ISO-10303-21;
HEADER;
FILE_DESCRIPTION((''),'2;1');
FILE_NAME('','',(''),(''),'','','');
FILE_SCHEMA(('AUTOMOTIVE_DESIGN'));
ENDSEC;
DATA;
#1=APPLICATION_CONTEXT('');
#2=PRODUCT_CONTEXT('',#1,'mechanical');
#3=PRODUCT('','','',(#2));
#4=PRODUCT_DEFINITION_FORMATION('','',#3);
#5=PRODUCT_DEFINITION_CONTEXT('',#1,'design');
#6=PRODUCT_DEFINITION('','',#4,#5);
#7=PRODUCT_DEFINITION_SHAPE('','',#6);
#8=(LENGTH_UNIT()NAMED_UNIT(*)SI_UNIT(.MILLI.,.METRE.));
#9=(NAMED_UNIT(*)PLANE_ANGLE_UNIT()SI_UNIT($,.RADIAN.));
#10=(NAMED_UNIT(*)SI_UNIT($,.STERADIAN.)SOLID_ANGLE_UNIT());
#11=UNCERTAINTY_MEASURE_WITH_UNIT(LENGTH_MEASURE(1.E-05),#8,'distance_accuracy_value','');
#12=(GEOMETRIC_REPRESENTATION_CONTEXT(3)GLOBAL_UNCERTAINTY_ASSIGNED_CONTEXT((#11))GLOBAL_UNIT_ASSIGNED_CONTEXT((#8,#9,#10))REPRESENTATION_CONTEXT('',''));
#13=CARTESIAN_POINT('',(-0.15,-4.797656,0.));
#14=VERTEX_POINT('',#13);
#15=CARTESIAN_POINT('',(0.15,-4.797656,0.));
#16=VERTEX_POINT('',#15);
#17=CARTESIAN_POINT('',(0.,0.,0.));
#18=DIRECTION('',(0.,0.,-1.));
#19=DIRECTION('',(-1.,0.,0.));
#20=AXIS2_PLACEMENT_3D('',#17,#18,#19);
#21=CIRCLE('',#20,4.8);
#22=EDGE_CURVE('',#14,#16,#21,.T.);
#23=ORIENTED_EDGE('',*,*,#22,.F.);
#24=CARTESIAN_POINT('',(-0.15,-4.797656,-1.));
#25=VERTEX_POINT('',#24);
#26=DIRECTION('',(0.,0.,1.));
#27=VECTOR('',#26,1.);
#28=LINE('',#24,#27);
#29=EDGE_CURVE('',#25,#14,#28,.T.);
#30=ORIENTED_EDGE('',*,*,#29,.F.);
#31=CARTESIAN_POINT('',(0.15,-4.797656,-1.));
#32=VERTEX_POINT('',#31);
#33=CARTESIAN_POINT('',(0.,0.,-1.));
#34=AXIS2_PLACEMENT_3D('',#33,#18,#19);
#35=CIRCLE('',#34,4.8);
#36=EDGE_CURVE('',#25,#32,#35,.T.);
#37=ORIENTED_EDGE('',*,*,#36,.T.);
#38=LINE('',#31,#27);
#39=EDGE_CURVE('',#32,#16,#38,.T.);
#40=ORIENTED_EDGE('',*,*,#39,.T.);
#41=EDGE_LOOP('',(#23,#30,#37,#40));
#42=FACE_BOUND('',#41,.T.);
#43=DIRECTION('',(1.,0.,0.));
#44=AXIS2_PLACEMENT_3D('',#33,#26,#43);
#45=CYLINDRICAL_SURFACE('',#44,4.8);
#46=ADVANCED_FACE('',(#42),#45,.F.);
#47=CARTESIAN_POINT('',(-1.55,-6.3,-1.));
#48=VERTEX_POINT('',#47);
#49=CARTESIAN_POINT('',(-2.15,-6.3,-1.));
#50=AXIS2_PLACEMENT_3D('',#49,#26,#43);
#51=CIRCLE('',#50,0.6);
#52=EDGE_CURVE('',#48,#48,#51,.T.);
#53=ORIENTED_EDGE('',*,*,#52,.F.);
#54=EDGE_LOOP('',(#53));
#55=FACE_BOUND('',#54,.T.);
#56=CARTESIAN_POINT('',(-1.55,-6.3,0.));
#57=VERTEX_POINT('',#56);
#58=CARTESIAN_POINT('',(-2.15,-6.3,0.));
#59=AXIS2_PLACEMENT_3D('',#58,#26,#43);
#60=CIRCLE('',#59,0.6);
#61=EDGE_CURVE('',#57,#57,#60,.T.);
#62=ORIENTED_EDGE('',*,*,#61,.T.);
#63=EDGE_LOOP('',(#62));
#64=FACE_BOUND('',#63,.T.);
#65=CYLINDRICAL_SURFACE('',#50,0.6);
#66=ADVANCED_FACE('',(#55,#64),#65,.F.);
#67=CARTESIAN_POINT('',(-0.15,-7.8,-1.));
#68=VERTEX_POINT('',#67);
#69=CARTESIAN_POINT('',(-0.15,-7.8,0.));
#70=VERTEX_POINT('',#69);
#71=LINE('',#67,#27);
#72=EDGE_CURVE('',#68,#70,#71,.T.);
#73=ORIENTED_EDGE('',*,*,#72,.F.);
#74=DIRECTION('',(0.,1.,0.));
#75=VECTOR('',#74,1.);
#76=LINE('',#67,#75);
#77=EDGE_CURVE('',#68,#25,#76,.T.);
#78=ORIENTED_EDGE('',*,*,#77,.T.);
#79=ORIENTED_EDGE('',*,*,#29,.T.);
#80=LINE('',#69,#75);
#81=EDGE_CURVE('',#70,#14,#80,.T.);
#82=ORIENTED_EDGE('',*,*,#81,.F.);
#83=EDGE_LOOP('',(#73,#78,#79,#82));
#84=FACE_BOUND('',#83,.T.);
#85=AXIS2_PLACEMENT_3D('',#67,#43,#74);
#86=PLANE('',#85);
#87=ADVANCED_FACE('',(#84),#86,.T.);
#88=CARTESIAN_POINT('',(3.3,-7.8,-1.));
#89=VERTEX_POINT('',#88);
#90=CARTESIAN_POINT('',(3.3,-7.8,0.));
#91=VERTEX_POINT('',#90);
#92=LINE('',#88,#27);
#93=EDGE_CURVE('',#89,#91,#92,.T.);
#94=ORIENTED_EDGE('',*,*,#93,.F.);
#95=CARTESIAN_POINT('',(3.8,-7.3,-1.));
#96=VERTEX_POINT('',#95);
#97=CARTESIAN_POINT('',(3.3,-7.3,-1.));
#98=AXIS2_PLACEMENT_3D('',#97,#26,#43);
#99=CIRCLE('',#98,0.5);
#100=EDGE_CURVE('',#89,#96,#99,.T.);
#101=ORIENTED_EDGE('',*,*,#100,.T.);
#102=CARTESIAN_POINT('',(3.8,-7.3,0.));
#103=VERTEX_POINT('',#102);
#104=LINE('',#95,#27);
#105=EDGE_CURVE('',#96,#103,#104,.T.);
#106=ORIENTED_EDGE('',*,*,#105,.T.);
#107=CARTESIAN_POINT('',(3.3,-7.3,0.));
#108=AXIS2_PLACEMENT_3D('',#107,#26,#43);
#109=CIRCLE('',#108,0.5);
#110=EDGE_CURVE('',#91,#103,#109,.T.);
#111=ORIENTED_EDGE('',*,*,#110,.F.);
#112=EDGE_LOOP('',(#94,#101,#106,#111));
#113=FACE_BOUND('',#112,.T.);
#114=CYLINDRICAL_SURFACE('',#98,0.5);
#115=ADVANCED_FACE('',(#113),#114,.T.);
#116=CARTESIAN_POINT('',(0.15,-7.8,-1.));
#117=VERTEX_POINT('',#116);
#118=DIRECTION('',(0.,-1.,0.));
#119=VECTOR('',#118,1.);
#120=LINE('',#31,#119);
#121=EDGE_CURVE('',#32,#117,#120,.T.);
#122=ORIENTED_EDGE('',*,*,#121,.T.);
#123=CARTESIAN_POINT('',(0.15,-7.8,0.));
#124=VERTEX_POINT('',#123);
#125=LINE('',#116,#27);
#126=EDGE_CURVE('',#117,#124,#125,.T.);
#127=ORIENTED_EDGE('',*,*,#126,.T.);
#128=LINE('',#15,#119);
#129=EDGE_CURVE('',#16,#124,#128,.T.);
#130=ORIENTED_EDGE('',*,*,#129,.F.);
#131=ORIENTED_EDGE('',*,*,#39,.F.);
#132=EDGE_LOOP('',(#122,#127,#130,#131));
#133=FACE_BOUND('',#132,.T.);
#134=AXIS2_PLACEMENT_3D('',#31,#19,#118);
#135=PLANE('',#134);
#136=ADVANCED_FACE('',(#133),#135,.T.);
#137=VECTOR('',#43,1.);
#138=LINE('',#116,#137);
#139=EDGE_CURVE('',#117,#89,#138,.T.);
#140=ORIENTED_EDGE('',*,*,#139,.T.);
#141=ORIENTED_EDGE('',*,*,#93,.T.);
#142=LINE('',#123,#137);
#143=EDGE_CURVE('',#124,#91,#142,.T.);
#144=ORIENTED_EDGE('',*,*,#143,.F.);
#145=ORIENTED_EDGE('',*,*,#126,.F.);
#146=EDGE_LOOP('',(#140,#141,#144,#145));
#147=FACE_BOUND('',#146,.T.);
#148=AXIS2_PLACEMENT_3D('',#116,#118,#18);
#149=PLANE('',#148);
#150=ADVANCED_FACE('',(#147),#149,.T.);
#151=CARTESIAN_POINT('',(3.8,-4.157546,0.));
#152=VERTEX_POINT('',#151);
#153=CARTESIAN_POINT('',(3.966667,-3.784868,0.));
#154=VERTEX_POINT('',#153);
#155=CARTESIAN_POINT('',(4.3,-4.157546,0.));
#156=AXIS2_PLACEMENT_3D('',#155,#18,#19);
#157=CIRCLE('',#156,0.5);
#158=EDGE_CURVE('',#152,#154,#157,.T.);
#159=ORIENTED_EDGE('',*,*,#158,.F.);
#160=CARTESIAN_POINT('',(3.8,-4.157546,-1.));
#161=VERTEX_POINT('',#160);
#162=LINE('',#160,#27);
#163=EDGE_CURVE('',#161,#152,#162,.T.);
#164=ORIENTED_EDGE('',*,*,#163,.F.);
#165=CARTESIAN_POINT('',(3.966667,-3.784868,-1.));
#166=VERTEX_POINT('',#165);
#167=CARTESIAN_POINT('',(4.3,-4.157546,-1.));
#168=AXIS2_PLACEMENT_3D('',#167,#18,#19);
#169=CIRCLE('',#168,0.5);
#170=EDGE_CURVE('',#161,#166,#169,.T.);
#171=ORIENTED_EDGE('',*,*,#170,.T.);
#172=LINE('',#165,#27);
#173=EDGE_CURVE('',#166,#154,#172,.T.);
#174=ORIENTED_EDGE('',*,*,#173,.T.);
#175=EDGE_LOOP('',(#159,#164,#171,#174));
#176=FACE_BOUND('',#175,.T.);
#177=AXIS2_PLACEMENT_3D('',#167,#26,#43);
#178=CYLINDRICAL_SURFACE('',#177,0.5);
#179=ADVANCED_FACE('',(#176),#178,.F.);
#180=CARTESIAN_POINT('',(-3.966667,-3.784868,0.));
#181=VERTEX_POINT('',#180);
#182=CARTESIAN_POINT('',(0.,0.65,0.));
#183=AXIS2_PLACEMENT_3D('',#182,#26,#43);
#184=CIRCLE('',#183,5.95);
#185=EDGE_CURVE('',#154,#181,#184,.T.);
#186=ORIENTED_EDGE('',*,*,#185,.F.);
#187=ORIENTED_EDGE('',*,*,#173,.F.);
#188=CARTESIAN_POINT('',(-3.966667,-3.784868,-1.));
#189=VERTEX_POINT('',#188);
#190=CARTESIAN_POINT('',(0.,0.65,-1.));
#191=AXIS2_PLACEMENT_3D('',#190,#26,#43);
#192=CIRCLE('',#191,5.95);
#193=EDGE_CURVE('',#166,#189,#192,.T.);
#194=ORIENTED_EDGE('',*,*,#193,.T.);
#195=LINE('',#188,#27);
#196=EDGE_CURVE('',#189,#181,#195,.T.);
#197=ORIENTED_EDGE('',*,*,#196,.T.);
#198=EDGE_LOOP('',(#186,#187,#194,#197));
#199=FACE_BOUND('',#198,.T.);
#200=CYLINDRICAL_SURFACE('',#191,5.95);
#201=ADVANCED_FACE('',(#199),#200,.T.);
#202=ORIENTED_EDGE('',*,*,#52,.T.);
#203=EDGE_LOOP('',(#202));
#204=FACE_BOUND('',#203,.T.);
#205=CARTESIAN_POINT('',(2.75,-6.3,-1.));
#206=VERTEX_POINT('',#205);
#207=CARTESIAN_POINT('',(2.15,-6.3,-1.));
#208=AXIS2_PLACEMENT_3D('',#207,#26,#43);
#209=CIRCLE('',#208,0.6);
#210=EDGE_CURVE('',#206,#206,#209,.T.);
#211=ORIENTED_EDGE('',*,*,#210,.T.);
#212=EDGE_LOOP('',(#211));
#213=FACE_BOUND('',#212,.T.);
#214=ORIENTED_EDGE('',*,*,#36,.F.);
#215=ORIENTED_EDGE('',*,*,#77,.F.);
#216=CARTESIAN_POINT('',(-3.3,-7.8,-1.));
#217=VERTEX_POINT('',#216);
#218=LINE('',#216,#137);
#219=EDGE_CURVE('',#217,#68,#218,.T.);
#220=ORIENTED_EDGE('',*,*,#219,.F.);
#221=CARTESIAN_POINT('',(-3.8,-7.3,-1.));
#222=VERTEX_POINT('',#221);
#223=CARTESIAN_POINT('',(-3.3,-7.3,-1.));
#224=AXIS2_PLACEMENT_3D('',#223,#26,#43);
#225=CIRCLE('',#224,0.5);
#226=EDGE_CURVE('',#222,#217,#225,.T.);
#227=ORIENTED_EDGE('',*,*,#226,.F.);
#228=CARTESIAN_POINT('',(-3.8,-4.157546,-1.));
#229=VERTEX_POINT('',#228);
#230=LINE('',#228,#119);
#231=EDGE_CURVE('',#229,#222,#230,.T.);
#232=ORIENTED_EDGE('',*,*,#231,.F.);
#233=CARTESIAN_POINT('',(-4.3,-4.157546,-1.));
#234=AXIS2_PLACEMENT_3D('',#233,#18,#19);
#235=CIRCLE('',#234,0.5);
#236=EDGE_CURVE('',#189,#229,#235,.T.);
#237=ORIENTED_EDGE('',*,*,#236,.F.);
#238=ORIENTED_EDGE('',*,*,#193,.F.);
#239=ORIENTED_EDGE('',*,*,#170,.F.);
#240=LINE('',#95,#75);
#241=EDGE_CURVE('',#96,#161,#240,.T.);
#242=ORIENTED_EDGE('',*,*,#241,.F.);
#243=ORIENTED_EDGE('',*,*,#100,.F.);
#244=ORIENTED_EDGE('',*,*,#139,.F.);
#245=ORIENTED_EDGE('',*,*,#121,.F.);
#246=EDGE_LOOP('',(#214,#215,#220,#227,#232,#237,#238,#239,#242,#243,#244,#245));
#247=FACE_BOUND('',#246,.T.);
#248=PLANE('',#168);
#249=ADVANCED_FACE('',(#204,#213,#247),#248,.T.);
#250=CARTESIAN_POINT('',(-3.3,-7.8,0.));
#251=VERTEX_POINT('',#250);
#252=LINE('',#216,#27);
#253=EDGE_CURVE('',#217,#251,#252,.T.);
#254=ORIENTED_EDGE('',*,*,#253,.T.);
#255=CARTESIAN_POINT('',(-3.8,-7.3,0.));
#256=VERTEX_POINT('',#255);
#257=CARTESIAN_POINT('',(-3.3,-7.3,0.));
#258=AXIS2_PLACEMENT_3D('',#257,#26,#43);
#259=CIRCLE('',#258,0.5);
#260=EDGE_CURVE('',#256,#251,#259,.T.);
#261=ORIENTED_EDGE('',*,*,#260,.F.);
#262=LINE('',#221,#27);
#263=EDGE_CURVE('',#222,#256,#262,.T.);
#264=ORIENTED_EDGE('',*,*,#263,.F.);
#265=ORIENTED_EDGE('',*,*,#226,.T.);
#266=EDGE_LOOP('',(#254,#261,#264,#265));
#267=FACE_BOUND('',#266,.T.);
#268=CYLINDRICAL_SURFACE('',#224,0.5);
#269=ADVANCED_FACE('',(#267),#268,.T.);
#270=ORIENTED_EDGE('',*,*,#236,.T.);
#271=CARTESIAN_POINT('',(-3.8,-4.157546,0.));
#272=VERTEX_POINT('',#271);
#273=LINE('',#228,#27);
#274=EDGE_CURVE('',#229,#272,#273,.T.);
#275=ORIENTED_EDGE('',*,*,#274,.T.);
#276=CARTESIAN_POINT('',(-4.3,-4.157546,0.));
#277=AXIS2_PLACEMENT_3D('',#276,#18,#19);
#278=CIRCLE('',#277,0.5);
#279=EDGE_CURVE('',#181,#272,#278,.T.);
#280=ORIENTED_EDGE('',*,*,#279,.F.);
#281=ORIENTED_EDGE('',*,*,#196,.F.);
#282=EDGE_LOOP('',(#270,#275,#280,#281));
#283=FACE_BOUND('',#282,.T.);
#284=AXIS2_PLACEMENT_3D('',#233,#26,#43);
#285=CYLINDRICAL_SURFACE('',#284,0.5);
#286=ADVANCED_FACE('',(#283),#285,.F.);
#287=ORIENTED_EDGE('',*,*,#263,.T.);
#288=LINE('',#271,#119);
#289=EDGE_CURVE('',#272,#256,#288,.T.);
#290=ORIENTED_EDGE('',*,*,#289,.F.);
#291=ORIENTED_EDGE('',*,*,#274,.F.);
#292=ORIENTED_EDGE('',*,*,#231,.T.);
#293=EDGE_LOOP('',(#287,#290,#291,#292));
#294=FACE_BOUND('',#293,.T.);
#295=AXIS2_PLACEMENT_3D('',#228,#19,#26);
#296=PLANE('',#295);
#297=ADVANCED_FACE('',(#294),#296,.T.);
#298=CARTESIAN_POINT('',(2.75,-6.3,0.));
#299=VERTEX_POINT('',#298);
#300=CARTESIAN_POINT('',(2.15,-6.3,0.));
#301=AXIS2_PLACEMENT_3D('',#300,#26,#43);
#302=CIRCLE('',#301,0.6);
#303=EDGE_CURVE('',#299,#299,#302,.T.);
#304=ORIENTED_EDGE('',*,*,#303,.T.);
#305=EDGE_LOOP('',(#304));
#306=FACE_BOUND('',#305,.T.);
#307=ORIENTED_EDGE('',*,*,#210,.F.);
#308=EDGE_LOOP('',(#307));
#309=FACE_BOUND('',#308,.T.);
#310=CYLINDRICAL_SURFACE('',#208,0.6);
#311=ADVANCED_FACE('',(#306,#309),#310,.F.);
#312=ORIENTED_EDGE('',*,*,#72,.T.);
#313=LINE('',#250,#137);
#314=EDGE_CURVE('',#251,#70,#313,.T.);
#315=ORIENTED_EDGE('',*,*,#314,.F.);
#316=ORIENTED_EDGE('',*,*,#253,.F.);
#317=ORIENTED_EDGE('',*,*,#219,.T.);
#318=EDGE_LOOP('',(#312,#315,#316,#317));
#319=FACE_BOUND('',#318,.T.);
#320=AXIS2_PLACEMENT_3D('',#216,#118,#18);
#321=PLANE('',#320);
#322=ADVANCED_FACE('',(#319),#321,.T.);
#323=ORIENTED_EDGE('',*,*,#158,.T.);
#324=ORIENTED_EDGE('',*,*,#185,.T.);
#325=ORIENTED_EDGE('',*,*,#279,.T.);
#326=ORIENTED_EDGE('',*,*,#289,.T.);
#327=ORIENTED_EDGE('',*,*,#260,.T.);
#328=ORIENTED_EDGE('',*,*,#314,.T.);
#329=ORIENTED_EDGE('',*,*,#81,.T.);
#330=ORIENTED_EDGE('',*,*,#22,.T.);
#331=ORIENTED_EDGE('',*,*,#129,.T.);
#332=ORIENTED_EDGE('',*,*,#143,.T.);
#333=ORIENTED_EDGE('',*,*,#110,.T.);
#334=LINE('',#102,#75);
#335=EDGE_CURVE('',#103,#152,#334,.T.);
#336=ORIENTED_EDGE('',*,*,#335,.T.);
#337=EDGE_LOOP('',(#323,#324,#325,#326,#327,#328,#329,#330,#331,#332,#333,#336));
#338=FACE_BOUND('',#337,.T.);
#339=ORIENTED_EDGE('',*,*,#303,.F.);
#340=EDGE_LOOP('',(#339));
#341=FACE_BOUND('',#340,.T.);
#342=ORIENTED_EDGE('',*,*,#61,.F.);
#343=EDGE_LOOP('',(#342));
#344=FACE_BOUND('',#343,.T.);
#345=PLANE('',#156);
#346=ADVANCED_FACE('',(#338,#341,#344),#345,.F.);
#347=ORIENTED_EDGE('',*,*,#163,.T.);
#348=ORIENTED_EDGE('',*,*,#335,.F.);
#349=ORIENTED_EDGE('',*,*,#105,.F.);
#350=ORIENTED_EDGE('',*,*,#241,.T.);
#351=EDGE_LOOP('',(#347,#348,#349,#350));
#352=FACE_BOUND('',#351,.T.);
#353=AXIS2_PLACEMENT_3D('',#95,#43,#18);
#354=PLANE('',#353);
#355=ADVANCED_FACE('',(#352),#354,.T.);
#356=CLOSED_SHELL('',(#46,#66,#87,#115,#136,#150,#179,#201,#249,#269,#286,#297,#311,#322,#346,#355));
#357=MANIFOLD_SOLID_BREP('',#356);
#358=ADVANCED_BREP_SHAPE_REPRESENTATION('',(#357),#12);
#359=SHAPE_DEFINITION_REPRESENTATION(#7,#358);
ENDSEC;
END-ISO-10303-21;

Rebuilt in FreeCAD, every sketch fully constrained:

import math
import FreeCAD as App
import Part
import Sketcher
from FreeCAD import Vector
Q = App.Units.Quantity

doc = App.newDocument("Part")
body = doc.addObject("PartDesign::Body", "Body")

sketch1 = body.newObject("Sketcher::SketchObject", "Sketch")
sketch1.AttachmentSupport = (doc.getObject("XY_Plane"), [""])
sketch1.MapMode = "FlatFace"
sketch1.addGeometry(Part.LineSegment(Vector(-3.8, -4.157546, 0), Vector(-3.8, -7.3, 0)), False)
sketch1.addGeometry(Part.ArcOfCircle(Part.Circle(Vector(-3.3, -7.3, 0), Vector(0, 0, 1), 0.5), math.radians(180), math.radians(270)), False)
sketch1.addGeometry(Part.LineSegment(Vector(-3.3, -7.8, 0), Vector(-0.15, -7.8, 0)), False)
sketch1.addGeometry(Part.LineSegment(Vector(-0.15, -7.8, 0), Vector(-0.15, -4.797656, 0)), False)
sketch1.addGeometry(Part.ArcOfCircle(Part.Circle(Vector(0, 0, 0), Vector(0, 0, 1), 4.8), math.radians(-88.209215), math.radians(268.209215)), False)
sketch1.addGeometry(Part.LineSegment(Vector(0.15, -4.797656, 0), Vector(0.15, -7.8, 0)), False)
sketch1.addGeometry(Part.LineSegment(Vector(0.15, -7.8, 0), Vector(3.3, -7.8, 0)), False)
sketch1.addGeometry(Part.ArcOfCircle(Part.Circle(Vector(3.3, -7.3, 0), Vector(0, 0, 1), 0.5), math.radians(-90), math.radians(0)), False)
sketch1.addGeometry(Part.LineSegment(Vector(3.8, -7.3, 0), Vector(3.8, -4.157546, 0)), False)
sketch1.addGeometry(Part.ArcOfCircle(Part.Circle(Vector(4.3, -4.157546, 0), Vector(0, 0, 1), 0.5), math.radians(131.810315), math.radians(180)), False)
sketch1.addGeometry(Part.ArcOfCircle(Part.Circle(Vector(0, 0.65, 0), Vector(0, 0, 1), 5.95), math.radians(-48.189685), math.radians(228.189685)), False)
sketch1.addGeometry(Part.ArcOfCircle(Part.Circle(Vector(-4.3, -4.157546, 0), Vector(0, 0, 1), 0.5), math.radians(0), math.radians(48.189685)), False)
sketch1.addConstraint(Sketcher.Constraint("Tangent", 0, 2, 1, 1))
sketch1.addConstraint(Sketcher.Constraint("Tangent", 1, 2, 2, 1))
sketch1.addConstraint(Sketcher.Constraint("Coincident", 2, 2, 3, 1))
sketch1.addConstraint(Sketcher.Constraint("Coincident", 3, 2, 4, 2))
sketch1.addConstraint(Sketcher.Constraint("Coincident", 4, 1, 5, 1))
sketch1.addConstraint(Sketcher.Constraint("Coincident", 5, 2, 6, 1))
sketch1.addConstraint(Sketcher.Constraint("Tangent", 6, 2, 7, 1))
sketch1.addConstraint(Sketcher.Constraint("Tangent", 7, 2, 8, 1))
sketch1.addConstraint(Sketcher.Constraint("Tangent", 8, 2, 9, 2))
sketch1.addConstraint(Sketcher.Constraint("Tangent", 9, 1, 10, 1))
sketch1.addConstraint(Sketcher.Constraint("Tangent", 10, 2, 11, 2))
sketch1.addConstraint(Sketcher.Constraint("Tangent", 11, 1, 0, 1))
sketch1.addConstraint(Sketcher.Constraint("Vertical", 0))
sketch1.addConstraint(Sketcher.Constraint("Horizontal", 2))
sketch1.addConstraint(Sketcher.Constraint("Vertical", 3))
sketch1.addConstraint(Sketcher.Constraint("Vertical", 5))
sketch1.addConstraint(Sketcher.Constraint("Horizontal", 6))
sketch1.addConstraint(Sketcher.Constraint("Vertical", 8))
sketch1.addConstraint(Sketcher.Constraint("Coincident", 4, 3, -1, 1))
sketch1.addConstraint(Sketcher.Constraint("Equal", 1, 7))
sketch1.addConstraint(Sketcher.Constraint("Equal", 7, 9))
sketch1.addConstraint(Sketcher.Constraint("Equal", 9, 11))
sketch1.addConstraint(Sketcher.Constraint("Symmetric", 1, 3, 7, 3, -2))
sketch1.addConstraint(Sketcher.Constraint("PointOnObject", 10, 3, -2))
sketch1.addConstraint(Sketcher.Constraint("Horizontal", 3, 2, 4, 1))
sketch1.addConstraint(Sketcher.Constraint("Radius", 1, Q("0.5 mm")))
sketch1.addConstraint(Sketcher.Constraint("Radius", 4, Q("4.8 mm")))
sketch1.addConstraint(Sketcher.Constraint("Radius", 10, Q("5.95 mm")))
sketch1.addConstraint(Sketcher.Constraint("DistanceX", 2, 1, 2, 2, Q("3.15 mm")))
sketch1.addConstraint(Sketcher.Constraint("DistanceX", 1, 3, -1, 1, Q("3.3 mm")))
sketch1.addConstraint(Sketcher.Constraint("DistanceY", 1, 3, -1, 1, Q("7.3 mm")))
sketch1.addConstraint(Sketcher.Constraint("DistanceY", -1, 1, 10, 3, Q("0.65 mm")))
pad1 = body.newObject("PartDesign::Pad", "Pad")
pad1.Profile = sketch1
pad1.Length = 1
pad1.Reversed = True

sketch2 = body.newObject("Sketcher::SketchObject", "Sketch001")
sketch2.AttachmentSupport = (doc.getObject("XY_Plane"), [""])
sketch2.MapMode = "FlatFace"
sketch2.addGeometry(Part.Circle(Vector(-2.15, -6.3, 0), Vector(0, 0, 1), 0.6), False)
sketch2.addGeometry(Part.Circle(Vector(2.15, -6.3, 0), Vector(0, 0, 1), 0.6), False)
sketch2.addConstraint(Sketcher.Constraint("Equal", 0, 1))
sketch2.addConstraint(Sketcher.Constraint("Symmetric", 0, 3, 1, 3, -2))
sketch2.addConstraint(Sketcher.Constraint("Diameter", 0, Q("1.2 mm")))
sketch2.addConstraint(Sketcher.Constraint("DistanceY", 0, 3, -1, 1, Q("6.3 mm")))
sketch2.addConstraint(Sketcher.Constraint("DistanceX", 0, 3, 1, 3, Q("4.3 mm")))
pocket1 = body.newObject("PartDesign::Pocket", "Pocket")
pocket1.Profile = sketch2
pocket1.Type = "ThroughAll"

doc.recompute()
